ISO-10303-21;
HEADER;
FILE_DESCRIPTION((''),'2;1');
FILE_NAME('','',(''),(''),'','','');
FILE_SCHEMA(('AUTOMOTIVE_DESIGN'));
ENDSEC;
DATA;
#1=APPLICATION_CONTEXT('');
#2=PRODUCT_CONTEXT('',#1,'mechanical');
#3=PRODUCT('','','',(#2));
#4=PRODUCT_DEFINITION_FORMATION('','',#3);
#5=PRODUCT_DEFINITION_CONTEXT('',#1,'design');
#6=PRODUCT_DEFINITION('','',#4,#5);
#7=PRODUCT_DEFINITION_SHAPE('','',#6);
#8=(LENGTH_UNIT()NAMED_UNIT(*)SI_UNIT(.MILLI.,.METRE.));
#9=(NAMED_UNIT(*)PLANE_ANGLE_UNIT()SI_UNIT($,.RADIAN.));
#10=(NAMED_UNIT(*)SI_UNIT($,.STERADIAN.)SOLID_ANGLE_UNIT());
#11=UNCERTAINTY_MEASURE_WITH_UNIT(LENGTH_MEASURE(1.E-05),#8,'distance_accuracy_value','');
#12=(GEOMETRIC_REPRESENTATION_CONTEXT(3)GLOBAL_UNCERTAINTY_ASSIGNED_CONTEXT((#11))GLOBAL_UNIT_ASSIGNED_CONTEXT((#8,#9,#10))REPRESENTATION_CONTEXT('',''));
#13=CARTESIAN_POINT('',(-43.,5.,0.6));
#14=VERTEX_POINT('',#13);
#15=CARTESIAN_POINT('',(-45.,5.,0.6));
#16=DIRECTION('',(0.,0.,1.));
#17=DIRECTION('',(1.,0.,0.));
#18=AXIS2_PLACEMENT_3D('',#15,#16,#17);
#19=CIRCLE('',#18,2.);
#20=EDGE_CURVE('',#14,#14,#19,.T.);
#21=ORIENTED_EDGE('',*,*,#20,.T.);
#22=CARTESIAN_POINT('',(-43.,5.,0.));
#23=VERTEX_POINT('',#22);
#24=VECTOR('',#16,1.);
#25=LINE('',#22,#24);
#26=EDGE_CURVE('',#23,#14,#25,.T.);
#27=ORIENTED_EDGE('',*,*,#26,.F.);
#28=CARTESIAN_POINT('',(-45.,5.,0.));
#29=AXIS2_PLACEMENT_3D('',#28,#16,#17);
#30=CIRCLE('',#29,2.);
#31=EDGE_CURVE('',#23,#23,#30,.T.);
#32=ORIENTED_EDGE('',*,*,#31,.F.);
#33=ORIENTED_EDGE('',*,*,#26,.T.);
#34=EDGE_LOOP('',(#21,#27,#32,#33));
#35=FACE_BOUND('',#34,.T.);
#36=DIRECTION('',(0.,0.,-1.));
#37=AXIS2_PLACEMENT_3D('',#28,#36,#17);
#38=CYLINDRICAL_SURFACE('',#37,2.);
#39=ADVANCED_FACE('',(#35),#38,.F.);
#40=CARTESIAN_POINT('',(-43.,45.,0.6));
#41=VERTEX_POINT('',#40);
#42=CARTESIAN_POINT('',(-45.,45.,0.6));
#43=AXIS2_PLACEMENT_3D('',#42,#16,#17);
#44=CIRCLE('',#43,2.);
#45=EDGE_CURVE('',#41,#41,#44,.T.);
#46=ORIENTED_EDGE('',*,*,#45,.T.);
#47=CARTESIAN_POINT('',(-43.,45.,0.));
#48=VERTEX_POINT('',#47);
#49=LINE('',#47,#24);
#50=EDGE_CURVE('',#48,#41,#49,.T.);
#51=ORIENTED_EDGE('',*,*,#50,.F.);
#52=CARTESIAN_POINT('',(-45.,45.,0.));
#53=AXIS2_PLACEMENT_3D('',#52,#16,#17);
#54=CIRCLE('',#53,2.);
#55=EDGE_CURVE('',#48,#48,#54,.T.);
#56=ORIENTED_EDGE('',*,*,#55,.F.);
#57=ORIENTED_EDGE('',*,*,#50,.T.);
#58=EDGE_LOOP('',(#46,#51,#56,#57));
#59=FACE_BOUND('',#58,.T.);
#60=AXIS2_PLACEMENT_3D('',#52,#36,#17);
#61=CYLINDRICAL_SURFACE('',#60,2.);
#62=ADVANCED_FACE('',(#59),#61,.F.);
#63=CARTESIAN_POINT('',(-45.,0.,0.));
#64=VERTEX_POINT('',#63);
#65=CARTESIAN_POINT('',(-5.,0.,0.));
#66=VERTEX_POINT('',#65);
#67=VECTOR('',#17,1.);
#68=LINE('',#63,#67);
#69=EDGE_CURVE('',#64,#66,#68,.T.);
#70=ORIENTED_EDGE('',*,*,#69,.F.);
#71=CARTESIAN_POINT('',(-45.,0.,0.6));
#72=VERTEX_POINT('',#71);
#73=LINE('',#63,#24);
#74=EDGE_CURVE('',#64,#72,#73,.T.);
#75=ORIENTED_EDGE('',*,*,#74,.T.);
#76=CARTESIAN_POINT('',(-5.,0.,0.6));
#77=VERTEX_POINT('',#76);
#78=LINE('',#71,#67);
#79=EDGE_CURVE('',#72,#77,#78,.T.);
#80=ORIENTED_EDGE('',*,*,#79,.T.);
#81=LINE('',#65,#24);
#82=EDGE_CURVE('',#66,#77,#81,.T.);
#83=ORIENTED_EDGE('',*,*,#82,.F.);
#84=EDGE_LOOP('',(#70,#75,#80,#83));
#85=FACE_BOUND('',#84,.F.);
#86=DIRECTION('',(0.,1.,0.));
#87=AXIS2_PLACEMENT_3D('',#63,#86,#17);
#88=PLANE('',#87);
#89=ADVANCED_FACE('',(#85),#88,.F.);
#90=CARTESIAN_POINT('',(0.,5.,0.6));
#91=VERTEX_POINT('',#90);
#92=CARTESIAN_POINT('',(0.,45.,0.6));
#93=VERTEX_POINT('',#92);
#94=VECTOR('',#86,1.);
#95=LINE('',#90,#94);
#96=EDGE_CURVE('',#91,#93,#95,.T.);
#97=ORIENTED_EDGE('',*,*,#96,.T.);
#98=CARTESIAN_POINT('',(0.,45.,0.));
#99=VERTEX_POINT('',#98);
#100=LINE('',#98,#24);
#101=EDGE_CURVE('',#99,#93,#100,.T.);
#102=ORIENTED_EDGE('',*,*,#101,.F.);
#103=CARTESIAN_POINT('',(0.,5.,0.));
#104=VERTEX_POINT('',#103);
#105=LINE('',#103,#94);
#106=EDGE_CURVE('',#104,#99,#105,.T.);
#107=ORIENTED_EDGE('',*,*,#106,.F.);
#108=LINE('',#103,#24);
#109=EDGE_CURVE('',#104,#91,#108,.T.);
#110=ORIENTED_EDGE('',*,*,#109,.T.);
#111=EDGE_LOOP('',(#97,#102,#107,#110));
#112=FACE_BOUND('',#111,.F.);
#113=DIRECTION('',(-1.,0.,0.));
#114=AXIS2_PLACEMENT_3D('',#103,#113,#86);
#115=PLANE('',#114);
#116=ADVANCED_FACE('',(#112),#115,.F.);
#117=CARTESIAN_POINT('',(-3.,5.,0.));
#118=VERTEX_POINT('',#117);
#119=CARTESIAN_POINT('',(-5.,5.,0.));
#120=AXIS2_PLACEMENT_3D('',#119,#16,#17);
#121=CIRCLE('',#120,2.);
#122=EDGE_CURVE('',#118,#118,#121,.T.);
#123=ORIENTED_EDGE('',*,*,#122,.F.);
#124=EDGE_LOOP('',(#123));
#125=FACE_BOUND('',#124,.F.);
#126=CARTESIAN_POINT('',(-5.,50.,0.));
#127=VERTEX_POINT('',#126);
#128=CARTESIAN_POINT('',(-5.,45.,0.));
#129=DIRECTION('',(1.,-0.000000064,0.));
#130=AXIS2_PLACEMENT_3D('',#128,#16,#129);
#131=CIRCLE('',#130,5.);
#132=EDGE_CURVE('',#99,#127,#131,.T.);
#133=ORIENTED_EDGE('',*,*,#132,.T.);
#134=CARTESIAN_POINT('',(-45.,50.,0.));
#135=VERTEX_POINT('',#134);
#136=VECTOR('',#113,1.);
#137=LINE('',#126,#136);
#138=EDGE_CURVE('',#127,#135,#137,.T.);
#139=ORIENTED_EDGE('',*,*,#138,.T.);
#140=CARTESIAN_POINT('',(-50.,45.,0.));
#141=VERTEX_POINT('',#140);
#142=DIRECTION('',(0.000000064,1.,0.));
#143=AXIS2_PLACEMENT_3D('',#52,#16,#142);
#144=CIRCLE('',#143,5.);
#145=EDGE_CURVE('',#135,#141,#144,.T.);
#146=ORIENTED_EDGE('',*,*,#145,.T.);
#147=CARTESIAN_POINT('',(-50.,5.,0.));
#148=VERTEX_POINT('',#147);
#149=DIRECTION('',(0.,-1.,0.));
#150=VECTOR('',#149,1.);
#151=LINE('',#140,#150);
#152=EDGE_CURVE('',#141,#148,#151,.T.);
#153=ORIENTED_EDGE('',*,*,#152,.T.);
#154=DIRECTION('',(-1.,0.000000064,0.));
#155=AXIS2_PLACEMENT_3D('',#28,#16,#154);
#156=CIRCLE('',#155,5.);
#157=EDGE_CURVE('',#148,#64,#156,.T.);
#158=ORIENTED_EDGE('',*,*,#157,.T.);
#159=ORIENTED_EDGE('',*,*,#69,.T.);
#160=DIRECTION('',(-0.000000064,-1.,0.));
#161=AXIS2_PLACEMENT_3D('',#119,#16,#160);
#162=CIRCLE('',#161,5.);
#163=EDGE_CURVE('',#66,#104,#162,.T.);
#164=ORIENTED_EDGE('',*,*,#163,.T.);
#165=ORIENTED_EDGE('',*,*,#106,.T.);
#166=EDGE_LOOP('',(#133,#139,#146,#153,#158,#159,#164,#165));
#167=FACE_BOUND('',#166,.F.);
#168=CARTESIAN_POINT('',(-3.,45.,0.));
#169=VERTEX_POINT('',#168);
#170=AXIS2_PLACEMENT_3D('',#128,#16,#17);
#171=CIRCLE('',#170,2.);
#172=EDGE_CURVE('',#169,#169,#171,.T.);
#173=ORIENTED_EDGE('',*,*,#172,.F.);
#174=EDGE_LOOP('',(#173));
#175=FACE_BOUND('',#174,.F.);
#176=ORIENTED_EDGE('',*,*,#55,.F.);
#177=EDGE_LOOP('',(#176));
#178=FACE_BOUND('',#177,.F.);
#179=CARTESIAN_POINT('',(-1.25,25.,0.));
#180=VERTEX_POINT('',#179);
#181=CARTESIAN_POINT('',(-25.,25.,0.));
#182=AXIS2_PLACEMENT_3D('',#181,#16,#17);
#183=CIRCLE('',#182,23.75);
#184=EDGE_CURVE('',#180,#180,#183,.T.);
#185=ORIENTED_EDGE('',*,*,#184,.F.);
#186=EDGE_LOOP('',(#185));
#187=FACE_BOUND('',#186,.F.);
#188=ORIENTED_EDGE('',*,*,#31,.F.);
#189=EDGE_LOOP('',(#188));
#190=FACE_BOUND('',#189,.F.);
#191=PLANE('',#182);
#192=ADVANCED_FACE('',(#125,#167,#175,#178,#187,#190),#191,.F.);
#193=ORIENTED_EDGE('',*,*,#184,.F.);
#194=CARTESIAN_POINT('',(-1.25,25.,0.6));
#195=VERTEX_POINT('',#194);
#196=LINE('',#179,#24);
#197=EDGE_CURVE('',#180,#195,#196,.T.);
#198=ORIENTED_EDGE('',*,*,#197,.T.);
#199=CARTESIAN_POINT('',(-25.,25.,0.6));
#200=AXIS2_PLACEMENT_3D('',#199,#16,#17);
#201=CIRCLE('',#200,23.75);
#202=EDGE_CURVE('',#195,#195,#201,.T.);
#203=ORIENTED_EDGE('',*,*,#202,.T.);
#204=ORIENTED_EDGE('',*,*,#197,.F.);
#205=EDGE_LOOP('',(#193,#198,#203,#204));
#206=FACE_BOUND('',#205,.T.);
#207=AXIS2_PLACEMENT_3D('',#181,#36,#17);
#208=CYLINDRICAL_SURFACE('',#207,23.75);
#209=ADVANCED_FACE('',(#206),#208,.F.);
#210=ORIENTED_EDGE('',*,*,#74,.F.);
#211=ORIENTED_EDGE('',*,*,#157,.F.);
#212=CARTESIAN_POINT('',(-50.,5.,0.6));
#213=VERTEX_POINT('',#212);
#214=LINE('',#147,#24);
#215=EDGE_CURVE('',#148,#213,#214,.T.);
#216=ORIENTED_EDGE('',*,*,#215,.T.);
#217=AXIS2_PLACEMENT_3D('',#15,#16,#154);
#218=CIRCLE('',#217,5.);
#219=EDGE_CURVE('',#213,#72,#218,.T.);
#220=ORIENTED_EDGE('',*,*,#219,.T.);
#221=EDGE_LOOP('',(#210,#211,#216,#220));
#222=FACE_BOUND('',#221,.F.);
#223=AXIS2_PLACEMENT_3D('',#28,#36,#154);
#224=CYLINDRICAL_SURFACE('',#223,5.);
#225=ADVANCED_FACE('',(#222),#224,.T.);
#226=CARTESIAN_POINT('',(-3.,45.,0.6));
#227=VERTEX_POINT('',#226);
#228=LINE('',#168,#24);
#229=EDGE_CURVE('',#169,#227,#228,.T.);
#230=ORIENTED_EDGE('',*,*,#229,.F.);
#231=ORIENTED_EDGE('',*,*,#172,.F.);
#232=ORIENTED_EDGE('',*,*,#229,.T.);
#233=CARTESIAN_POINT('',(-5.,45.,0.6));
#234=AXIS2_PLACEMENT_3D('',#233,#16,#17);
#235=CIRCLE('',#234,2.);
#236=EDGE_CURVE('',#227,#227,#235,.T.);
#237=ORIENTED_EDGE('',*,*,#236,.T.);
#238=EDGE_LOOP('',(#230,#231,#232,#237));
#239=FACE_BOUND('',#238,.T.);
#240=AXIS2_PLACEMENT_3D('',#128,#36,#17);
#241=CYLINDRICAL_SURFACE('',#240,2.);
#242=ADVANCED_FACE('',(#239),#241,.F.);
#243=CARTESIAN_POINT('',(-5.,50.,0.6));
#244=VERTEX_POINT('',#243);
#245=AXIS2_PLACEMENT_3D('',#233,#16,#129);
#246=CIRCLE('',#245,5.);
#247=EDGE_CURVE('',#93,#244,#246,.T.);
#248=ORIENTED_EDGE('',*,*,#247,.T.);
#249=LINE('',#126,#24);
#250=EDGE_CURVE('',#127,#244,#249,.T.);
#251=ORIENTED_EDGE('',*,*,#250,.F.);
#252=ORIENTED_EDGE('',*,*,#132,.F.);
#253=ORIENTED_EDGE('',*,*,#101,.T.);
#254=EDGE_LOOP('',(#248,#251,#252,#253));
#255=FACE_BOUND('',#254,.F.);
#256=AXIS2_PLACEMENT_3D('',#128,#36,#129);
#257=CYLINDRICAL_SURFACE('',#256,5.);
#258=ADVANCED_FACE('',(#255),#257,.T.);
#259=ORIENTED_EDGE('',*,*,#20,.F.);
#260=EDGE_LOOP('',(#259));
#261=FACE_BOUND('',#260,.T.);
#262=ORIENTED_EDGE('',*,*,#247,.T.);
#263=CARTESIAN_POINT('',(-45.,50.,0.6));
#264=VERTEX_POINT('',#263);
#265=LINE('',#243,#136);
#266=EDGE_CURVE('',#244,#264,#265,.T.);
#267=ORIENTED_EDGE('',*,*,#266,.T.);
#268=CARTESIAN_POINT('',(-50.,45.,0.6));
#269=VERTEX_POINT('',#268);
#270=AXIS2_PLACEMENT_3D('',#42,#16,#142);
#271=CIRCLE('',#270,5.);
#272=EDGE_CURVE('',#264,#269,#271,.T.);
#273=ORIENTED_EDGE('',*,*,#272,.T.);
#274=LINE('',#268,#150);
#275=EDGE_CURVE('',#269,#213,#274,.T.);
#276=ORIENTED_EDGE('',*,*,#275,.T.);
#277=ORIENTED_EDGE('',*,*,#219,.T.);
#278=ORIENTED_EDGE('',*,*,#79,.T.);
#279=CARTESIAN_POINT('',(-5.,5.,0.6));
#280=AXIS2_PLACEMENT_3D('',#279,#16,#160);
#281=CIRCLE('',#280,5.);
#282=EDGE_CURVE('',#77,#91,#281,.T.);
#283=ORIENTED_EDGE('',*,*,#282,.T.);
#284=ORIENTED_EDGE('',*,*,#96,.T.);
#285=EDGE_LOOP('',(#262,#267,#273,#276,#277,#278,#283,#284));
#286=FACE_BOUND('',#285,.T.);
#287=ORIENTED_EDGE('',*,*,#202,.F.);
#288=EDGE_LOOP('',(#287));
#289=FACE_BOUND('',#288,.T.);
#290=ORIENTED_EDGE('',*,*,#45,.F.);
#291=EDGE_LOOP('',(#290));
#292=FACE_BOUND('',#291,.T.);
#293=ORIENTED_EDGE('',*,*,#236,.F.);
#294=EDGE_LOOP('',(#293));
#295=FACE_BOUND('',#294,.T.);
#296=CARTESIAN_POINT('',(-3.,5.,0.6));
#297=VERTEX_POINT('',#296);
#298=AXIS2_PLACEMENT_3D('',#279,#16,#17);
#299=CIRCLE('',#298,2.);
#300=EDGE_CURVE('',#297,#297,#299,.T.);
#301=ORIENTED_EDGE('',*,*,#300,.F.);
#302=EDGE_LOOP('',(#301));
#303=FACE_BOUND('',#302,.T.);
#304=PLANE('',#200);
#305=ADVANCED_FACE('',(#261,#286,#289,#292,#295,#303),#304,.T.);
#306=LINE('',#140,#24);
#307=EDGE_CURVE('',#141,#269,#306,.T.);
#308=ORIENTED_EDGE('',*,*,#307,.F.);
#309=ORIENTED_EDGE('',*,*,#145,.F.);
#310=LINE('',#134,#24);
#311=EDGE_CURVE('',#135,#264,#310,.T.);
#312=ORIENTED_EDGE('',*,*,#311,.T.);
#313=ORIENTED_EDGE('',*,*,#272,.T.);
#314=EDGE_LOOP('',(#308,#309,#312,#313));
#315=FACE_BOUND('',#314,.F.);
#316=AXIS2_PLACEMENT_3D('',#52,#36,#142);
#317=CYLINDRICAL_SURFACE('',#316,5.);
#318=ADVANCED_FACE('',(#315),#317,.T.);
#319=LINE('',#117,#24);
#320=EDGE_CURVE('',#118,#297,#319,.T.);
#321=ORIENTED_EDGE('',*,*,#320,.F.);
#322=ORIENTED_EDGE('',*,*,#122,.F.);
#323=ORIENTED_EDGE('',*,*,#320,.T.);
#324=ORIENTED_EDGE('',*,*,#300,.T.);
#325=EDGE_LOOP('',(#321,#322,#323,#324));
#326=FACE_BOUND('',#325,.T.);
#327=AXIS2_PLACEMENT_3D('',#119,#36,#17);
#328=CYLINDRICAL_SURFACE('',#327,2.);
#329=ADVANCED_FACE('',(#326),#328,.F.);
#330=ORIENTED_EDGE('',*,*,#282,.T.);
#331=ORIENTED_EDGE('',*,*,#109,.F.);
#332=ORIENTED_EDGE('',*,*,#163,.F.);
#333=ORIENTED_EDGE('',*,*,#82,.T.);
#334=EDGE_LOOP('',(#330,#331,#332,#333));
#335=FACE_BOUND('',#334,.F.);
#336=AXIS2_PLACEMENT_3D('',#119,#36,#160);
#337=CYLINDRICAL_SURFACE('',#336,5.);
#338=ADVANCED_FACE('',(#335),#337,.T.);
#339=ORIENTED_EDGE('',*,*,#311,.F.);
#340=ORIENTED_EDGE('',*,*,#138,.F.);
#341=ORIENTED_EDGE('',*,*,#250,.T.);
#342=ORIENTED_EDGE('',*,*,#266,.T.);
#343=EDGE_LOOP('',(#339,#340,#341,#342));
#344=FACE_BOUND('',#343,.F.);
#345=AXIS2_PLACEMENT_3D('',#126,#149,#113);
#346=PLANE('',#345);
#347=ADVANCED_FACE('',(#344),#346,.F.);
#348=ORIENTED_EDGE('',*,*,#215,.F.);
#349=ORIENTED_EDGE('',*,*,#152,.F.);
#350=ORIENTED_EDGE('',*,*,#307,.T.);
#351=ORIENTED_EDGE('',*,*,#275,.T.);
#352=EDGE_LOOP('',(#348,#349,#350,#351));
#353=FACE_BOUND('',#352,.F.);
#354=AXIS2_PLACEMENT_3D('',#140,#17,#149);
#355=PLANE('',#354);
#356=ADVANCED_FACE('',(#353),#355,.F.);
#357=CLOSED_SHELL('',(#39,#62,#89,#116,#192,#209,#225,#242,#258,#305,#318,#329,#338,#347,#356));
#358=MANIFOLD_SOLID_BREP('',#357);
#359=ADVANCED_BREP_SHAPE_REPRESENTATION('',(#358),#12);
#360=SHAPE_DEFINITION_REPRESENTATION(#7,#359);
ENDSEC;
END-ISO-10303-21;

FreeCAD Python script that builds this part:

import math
import FreeCAD as App
import Part
import Sketcher

V = App.Vector
Q = App.Units.Quantity

doc = App.newDocument("Part")
params = doc.addObject("Spreadsheet::Sheet", "Params")
for row, (alias, value) in enumerate([
    ("sketch1_diameter", "4 mm"),
    ("sketch1_radius", "5 mm"),
    ("sketch1_diameter2", "47.5 mm"),
    ("sketch1_width", "40 mm"),
    ("pad1_length", "0.6 mm"),
], start=1):
    params.set(f"A{row}", alias)
    params.set(f"B{row}", "=" + value)
    params.setAlias(f"B{row}", alias)

body = doc.addObject("PartDesign::Body", "Body")

sketch1 = body.newObject("Sketcher::SketchObject", "Sketch")
sketch1.AttachmentSupport = (doc.getObject("XY_Plane"), [""])
sketch1.MapMode = "FlatFace"
sketch1.addGeometry([
    Part.LineSegment(V(-45, 0, 0), V(-5, 0, 0)),
    Part.ArcOfCircle(Part.Circle(V(-5, 5, 0), V(0, 0, 1), 5), math.radians(-90), math.radians(0)),
    Part.LineSegment(V(0, 5, 0), V(0, 45, 0)),
    Part.ArcOfCircle(Part.Circle(V(-5, 45, 0), V(0, 0, 1), 5), math.radians(0), math.radians(90)),
    Part.LineSegment(V(-5, 50, 0), V(-45, 50, 0)),
    Part.ArcOfCircle(Part.Circle(V(-45, 45, 0), V(0, 0, 1), 5), math.radians(90), math.radians(180)),
    Part.LineSegment(V(-50, 45, 0), V(-50, 5, 0)),
    Part.ArcOfCircle(Part.Circle(V(-45, 5, 0), V(0, 0, 1), 5), math.radians(180), math.radians(270)),
    Part.Circle(V(-45, 5, 0), V(0, 0, 1), 2),
    Part.Circle(V(-5, 5, 0), V(0, 0, 1), 2),
    Part.Circle(V(-45, 45, 0), V(0, 0, 1), 2),
    Part.Circle(V(-25, 25, 0), V(0, 0, 1), 23.8),
    Part.Circle(V(-5, 45, 0), V(0, 0, 1), 2),
], False)
sketch1.addConstraint([
    Sketcher.Constraint("Tangent", 0, 2, 1, 1),
    Sketcher.Constraint("Tangent", 1, 2, 2, 1),
    Sketcher.Constraint("Tangent", 2, 2, 3, 1),
    Sketcher.Constraint("Tangent", 3, 2, 4, 1),
    Sketcher.Constraint("Tangent", 4, 2, 5, 1),
    Sketcher.Constraint("Tangent", 5, 2, 6, 1),
    Sketcher.Constraint("Tangent", 6, 2, 7, 1),
    Sketcher.Constraint("Tangent", 7, 2, 0, 1),
    Sketcher.Constraint("Horizontal", 0),
    Sketcher.Constraint("Vertical", 2),
    Sketcher.Constraint("Horizontal", 4),
    Sketcher.Constraint("Vertical", 6),
    Sketcher.Constraint("Coincident", 8, 3, 7, 3),
    Sketcher.Constraint("Coincident", 9, 3, 1, 3),
    Sketcher.Constraint("Coincident", 10, 3, 5, 3),
    Sketcher.Constraint("Coincident", 12, 3, 3, 3),
    Sketcher.Constraint("Equal", 1, 3),
    Sketcher.Constraint("Equal", 3, 5),
    Sketcher.Constraint("Equal", 5, 7),
    Sketcher.Constraint("Equal", 8, 9),
    Sketcher.Constraint("Equal", 9, 10),
    Sketcher.Constraint("Equal", 10, 12),
    Sketcher.Constraint("PointOnObject", 0, 2, -1),
    Sketcher.Constraint("PointOnObject", 1, 2, -2),
    Sketcher.Constraint("Equal", 4, 2),
    Sketcher.Constraint("Diameter", 8, Q("4 mm")),
    Sketcher.Constraint("Radius", 1, Q("5 mm")),
    Sketcher.Constraint("Diameter", 11, Q("47.5 mm")),
    Sketcher.Constraint("DistanceX", 0, 1, 0, 2, Q("40 mm")),
    Sketcher.Constraint("DistanceX", 11, 3, -1, 1, Q("25 mm")),
    Sketcher.Constraint("DistanceY", -1, 1, 11, 3, Q("25 mm")),
])
sketch1.setExpression("Constraints[25]", "Params.sketch1_diameter")
sketch1.setExpression("Constraints[26]", "Params.sketch1_radius")
sketch1.setExpression("Constraints[27]", "Params.sketch1_diameter2")
sketch1.setExpression("Constraints[28]", "Params.sketch1_width")
pad1 = body.newObject("PartDesign::Pad", "Pad")
pad1.Profile = sketch1
pad1.setExpression("Length", "Params.pad1_length")

doc.recompute()
